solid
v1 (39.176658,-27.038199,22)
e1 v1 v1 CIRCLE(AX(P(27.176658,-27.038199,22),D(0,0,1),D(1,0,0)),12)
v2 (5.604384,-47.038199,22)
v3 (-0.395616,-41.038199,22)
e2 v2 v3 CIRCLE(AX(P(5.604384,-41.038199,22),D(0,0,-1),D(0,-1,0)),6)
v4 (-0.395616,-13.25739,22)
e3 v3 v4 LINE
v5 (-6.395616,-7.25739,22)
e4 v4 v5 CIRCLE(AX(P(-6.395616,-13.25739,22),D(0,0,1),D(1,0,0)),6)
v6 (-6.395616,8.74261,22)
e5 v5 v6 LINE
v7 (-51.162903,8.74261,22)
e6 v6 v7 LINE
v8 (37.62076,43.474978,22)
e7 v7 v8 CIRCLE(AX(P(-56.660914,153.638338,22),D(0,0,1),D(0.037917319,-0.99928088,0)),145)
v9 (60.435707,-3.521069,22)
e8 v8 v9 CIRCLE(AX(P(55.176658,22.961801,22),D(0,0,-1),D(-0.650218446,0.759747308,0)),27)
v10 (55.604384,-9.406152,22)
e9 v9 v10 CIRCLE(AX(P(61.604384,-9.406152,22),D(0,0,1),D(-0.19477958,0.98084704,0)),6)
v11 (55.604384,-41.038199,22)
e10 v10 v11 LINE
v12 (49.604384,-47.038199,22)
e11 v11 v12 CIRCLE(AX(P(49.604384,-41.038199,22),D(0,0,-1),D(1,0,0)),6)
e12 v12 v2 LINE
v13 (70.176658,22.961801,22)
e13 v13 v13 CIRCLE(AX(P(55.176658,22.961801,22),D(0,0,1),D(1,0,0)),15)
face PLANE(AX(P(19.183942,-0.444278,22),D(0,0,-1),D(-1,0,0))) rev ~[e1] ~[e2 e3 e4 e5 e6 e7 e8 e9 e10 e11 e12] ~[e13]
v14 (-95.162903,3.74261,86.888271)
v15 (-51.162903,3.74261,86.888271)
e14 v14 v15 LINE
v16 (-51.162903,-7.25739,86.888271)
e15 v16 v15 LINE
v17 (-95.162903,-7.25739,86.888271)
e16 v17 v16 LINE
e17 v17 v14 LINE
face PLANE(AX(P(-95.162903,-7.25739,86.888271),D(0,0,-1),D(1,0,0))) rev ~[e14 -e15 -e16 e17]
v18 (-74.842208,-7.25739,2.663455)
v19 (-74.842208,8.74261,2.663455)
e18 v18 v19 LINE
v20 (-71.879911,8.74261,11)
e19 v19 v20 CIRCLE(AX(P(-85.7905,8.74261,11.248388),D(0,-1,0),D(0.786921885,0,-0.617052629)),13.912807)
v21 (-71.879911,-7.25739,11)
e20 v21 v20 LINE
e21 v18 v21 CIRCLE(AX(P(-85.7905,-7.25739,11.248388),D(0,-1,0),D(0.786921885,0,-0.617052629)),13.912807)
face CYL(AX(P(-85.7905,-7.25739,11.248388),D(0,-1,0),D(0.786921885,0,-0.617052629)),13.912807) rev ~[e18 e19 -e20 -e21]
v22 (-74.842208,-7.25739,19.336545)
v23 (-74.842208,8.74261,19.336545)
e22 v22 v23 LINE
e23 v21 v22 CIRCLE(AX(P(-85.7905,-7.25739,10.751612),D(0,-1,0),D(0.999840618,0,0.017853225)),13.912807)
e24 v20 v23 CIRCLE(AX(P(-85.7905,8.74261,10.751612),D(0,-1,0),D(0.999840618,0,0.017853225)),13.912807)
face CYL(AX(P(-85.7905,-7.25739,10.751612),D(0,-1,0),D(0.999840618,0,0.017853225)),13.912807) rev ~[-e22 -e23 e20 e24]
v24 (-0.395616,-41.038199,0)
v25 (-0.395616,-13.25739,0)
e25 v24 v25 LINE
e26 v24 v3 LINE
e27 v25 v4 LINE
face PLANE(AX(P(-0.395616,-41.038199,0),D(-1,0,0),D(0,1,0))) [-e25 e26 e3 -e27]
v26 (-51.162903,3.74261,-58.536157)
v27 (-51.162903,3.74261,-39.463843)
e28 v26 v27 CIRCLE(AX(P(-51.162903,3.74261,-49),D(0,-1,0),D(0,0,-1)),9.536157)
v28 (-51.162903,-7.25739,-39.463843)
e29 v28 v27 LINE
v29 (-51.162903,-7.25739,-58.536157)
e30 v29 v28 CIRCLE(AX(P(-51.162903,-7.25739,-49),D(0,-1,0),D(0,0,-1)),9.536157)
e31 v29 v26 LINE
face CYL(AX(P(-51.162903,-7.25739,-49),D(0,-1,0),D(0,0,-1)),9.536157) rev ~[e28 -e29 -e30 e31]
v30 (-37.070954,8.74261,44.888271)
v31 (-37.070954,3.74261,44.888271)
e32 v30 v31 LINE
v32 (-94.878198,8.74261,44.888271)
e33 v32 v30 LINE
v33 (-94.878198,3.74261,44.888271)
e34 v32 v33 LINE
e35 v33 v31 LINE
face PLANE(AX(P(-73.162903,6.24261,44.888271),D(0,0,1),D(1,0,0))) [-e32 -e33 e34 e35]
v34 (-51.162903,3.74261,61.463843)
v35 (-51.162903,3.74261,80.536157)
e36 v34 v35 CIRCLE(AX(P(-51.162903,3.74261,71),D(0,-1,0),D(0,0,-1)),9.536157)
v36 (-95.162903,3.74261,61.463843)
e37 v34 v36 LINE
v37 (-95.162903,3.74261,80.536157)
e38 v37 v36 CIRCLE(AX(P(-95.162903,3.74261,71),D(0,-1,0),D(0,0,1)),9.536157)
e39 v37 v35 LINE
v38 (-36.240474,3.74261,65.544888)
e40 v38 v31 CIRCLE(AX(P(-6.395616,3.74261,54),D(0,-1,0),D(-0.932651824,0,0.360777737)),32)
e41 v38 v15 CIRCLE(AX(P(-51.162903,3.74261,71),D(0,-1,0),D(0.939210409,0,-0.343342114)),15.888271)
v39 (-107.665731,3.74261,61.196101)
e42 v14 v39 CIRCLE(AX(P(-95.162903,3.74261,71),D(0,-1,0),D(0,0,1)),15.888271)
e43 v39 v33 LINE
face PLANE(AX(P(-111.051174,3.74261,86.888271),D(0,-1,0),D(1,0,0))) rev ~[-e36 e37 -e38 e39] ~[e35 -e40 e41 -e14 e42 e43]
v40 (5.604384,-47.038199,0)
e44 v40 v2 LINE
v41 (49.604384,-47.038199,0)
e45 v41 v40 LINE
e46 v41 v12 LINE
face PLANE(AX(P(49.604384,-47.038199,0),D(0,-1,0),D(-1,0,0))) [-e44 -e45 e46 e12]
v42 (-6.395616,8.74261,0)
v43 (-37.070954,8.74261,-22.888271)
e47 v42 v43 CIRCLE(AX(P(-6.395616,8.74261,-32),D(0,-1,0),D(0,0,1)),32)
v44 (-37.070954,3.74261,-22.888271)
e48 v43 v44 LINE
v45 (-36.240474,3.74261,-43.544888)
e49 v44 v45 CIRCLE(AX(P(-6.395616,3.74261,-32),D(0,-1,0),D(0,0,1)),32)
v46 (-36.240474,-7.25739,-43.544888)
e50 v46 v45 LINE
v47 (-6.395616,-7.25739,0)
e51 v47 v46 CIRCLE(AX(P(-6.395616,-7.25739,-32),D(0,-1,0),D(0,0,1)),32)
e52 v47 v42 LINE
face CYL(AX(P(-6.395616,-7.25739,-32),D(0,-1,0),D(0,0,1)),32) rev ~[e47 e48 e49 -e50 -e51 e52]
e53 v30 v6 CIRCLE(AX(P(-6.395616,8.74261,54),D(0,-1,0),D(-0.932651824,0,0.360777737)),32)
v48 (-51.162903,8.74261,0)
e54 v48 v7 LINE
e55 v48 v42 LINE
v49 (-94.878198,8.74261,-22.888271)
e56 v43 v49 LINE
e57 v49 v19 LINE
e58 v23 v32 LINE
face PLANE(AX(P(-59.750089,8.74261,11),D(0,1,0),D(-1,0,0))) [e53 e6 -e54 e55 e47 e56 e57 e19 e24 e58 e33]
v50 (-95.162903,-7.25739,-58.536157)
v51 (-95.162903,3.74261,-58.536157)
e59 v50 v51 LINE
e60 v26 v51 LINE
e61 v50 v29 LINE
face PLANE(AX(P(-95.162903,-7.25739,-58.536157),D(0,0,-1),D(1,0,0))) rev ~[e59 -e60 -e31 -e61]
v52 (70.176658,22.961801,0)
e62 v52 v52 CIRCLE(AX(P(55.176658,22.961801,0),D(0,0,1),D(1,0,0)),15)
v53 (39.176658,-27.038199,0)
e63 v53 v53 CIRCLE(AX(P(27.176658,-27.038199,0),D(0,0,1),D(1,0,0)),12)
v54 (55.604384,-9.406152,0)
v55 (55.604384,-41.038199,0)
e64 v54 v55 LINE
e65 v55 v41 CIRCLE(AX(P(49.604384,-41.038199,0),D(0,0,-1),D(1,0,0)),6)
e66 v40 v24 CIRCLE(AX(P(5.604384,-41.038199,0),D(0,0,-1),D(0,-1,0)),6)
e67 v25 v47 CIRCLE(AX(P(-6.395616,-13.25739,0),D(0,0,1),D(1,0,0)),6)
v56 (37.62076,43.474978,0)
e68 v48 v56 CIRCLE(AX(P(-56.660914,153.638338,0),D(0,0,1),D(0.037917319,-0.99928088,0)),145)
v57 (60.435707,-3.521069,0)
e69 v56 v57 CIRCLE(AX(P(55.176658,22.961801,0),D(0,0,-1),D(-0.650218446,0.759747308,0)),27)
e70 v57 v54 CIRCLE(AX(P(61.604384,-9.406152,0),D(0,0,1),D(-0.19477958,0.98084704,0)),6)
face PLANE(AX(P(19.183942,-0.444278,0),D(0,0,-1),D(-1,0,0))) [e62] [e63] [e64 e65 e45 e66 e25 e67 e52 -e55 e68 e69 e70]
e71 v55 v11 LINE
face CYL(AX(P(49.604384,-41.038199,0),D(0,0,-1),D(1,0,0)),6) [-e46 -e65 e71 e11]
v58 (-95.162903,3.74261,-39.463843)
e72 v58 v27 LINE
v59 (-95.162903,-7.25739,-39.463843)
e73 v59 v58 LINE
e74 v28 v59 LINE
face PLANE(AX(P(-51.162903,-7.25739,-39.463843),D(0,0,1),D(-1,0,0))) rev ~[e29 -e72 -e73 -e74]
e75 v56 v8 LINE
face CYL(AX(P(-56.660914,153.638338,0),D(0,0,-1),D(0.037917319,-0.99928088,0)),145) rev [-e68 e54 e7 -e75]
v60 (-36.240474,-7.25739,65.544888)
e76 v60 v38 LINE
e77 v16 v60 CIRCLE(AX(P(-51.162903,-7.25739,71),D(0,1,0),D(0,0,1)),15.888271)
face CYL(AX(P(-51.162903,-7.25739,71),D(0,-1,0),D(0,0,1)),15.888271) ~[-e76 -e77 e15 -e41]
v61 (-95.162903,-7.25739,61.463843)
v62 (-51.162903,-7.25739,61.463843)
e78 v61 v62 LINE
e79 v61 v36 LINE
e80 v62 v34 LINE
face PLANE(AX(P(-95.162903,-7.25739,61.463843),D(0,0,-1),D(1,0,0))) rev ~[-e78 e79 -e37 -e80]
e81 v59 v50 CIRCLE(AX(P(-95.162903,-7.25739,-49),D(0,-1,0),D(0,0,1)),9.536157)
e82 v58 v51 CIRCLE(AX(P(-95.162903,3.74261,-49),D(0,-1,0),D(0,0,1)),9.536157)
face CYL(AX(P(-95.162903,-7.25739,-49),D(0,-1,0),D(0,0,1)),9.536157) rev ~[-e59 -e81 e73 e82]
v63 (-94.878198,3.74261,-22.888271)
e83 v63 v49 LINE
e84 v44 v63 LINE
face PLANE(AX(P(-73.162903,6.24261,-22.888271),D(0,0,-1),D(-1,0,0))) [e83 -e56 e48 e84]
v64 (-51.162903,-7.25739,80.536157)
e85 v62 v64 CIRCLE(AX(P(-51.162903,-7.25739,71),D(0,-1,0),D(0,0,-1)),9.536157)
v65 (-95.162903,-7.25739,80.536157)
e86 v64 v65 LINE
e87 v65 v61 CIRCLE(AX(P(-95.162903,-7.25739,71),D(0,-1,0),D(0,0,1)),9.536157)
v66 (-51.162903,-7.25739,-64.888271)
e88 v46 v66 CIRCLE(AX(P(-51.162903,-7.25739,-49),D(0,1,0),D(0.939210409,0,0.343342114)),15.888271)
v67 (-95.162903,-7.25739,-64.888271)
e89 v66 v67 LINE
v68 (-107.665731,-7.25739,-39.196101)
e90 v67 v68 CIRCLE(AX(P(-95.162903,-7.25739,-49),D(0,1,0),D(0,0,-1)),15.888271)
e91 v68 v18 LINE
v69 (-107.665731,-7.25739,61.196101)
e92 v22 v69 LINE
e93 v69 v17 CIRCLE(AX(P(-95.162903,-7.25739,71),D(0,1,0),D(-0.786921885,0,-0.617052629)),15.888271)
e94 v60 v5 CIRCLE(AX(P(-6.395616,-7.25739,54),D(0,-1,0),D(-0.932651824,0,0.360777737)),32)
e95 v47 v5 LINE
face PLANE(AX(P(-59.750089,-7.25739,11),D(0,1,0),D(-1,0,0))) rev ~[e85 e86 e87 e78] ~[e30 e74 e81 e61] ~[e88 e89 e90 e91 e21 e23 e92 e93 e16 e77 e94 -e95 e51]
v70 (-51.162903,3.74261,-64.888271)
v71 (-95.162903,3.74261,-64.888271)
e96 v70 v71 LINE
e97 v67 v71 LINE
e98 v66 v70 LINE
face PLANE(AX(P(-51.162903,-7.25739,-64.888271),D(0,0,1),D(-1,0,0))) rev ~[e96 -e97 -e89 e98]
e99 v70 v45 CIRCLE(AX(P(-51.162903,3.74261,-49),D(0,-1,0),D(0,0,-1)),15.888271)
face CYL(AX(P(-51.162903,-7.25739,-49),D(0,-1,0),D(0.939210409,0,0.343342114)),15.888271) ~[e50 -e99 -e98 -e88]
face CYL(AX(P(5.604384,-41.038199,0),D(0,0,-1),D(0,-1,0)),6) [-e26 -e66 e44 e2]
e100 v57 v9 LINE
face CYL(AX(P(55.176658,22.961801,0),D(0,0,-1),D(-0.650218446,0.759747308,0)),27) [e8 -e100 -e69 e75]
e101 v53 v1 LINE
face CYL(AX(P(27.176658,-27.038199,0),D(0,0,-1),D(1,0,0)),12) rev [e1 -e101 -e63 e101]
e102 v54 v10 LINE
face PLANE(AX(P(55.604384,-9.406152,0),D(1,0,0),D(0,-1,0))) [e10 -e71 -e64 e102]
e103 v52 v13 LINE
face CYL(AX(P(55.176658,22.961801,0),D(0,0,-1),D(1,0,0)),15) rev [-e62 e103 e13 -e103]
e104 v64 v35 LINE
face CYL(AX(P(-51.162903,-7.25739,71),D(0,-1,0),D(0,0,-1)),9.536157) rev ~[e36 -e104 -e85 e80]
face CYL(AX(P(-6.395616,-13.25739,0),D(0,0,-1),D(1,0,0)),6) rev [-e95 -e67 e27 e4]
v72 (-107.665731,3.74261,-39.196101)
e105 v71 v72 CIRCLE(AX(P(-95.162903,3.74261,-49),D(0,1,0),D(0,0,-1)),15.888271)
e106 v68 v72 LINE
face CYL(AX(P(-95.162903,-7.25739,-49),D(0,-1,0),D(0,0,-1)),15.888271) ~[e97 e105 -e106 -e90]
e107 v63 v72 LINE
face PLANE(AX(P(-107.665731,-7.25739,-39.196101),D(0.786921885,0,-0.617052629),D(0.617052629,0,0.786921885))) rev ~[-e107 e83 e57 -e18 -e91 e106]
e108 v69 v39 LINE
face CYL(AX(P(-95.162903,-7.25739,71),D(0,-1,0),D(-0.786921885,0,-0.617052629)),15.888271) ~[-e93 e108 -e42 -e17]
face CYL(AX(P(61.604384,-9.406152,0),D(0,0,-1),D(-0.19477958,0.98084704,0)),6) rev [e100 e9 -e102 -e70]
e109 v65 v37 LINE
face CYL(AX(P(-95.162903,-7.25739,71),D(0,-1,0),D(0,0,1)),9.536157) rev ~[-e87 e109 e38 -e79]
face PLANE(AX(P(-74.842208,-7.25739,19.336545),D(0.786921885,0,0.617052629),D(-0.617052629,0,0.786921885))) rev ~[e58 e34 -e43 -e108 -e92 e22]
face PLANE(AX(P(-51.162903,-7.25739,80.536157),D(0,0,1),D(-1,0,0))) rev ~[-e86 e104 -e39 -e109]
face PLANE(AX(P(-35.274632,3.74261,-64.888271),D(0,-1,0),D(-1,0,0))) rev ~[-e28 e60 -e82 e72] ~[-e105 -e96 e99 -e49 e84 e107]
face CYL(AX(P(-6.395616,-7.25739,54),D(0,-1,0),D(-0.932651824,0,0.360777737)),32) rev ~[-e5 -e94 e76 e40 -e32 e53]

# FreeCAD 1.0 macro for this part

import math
import FreeCAD as App
import Part
import Sketcher
from FreeCAD import Vector


def add_polygon(sketch, points):
    """Adds a closed chain of lines whose ends are joined by coincident constraints."""
    first, n = sketch.GeometryCount, len(points)
    for a, b in zip(points, points[1:] + points[:1]):
        sketch.addGeometry(Part.LineSegment(App.Vector(*a, 0), App.Vector(*b, 0)), False)
    for i in range(n):
        sketch.addConstraint(Sketcher.Constraint("Coincident", first + i, 2, first + (i + 1) % n, 1))

doc = App.newDocument("Part")
body = doc.addObject("PartDesign::Body", "Body")

# Sketch on XY plane
sketch1 = body.newObject("Sketcher::SketchObject", "Sketch")
sketch1.AttachmentSupport = (doc.getObject("XY_Plane"), [""])
sketch1.MapMode = "FlatFace"
sketch1.addGeometry([
    Part.LineSegment(Vector(56, -41, 0), Vector(56, -9, 0)),  # 0
    Part.ArcOfCircle(Part.Circle(Vector(62, -9, 0), Vector(0, 0, 1), 6), math.radians(101), math.radians(180)),  # 1
    Part.ArcOfCircle(Part.Circle(Vector(55, 23, 0), Vector(0, 0, 1), 27), math.radians(-79), math.radians(131)),  # 2
    Part.ArcOfCircle(Part.Circle(Vector(-57, 154, 0), Vector(0, 0, 1), 145), math.radians(-88), math.radians(-49)),  # 3
    Part.LineSegment(Vector(-51, 9, 0), Vector(-51, -7, 0)),  # 4
    Part.LineSegment(Vector(-51, -7, 0), Vector(-6, -7, 0)),  # 5
    Part.ArcOfCircle(Part.Circle(Vector(-6, -13, 0), Vector(0, 0, 1), 6), math.radians(0), math.radians(90)),  # 6
    Part.LineSegment(Vector(0, -13, 0), Vector(0, -41, 0)),  # 7
    Part.ArcOfCircle(Part.Circle(Vector(6, -41, 0), Vector(0, 0, 1), 6), math.radians(180), math.radians(270)),  # 8
    Part.LineSegment(Vector(6, -47, 0), Vector(50, -47, 0)),  # 9
    Part.ArcOfCircle(Part.Circle(Vector(50, -41, 0), Vector(0, 0, 1), 6), math.radians(-90), math.radians(0)),  # 10
    Part.Circle(Vector(27, -27, 0), Vector(0, 0, 1), 12),  # 11
    Part.Circle(Vector(55, 23, 0), Vector(0, 0, 1), 15),  # 12
], False)
sketch1.addConstraint([
    Sketcher.Constraint("Tangent", 0, 2, 1, 2),
    Sketcher.Constraint("Tangent", 1, 1, 2, 1),
    Sketcher.Constraint("Tangent", 2, 2, 3, 2),
    Sketcher.Constraint("Coincident", 3, 1, 4, 1),
    Sketcher.Constraint("Coincident", 4, 2, 5, 1),
    Sketcher.Constraint("Tangent", 5, 2, 6, 2),
    Sketcher.Constraint("Tangent", 6, 1, 7, 1),
    Sketcher.Constraint("Tangent", 7, 2, 8, 1),
    Sketcher.Constraint("Tangent", 8, 2, 9, 1),
    Sketcher.Constraint("Tangent", 9, 2, 10, 1),
    Sketcher.Constraint("Tangent", 10, 2, 0, 1),
    Sketcher.Constraint("Vertical", 0),
    Sketcher.Constraint("Vertical", 4),
    Sketcher.Constraint("Horizontal", 5),
    Sketcher.Constraint("Vertical", 7),
    Sketcher.Constraint("Horizontal", 9),
    Sketcher.Constraint("Coincident", 12, 3, 2, 3),
    Sketcher.Constraint("Equal", 1, 6),
    Sketcher.Constraint("Equal", 6, 8),
    Sketcher.Constraint("Equal", 8, 10),
    Sketcher.Constraint("Diameter", 11, 24.0),
    Sketcher.Constraint("Diameter", 12, 30.0),
    Sketcher.Constraint("Radius", 1, 6.0),
    Sketcher.Constraint("Radius", 2, 27.0),
    Sketcher.Constraint("Radius", 3, 145.0),
    Sketcher.Constraint("DistanceX", 9, 1, 9, 2, 44.0),
    Sketcher.Constraint("DistanceY", 4, 2, 4, 1, 16.0),
    Sketcher.Constraint("DistanceY", 8, 3, 2, 3, 64.0),
    Sketcher.Constraint("DistanceY", 8, 3, 11, 3, 14.0),
    Sketcher.Constraint("DistanceX", 11, 3, 2, 3, 28.0),
    Sketcher.Constraint("DistanceY", 7, 2, 7, 1, 27.780809),
    Sketcher.Constraint("DistanceY", -1, 1, 2, 3, 22.961801),
    Sketcher.Constraint("DistanceX", 3, 3, 1, 3, 118.265299),
    Sketcher.Constraint("DistanceX", 5, 1, 5, 2, 44.767288),
    Sketcher.Constraint("DistanceX", -1, 1, 2, 3, 55.176658),
])
pad1 = body.newObject("PartDesign::Pad", "Pad")
pad1.Profile = sketch1
pad1.Length = 22

# Sketch on XZ plane
sketch2 = body.newObject("Sketcher::SketchObject", "Sketch001")
sketch2.AttachmentSupport = (doc.getObject("XZ_Plane"), [""])
sketch2.MapMode = "FlatFace"
sketch2.AttachmentOffset = App.Placement(Vector(0, 0, 7.25739), App.Rotation())
sketch2.addGeometry([
    Part.ArcOfCircle(Part.Circle(Vector(-51, -49, 0), Vector(0, 0, 1), 16), math.radians(-90), math.radians(20)),  # 0
    Part.ArcOfCircle(Part.Circle(Vector(-6, -32, 0), Vector(0, 0, 1), 32), math.radians(90), math.radians(201)),  # 1
    Part.LineSegment(Vector(-6, 0, 0), Vector(-51, 0, 0)),  # 2
    Part.LineSegment(Vector(-51, 0, 0), Vector(-51, 22, 0)),  # 3
    Part.LineSegment(Vector(-51, 22, 0), Vector(-6, 22, 0)),  # 4
    Part.ArcOfCircle(Part.Circle(Vector(-6, 54, 0), Vector(0, 0, 1), 32), math.radians(159), math.radians(270)),  # 5
    Part.ArcOfCircle(Part.Circle(Vector(-51, 71, 0), Vector(0, 0, 1), 16), math.radians(-20), math.radians(90)),  # 6
    Part.LineSegment(Vector(-51, 87, 0), Vector(-95, 87, 0)),  # 7
    Part.ArcOfCircle(Part.Circle(Vector(-95, 71, 0), Vector(0, 0, 1), 16), math.radians(90), math.radians(218)),  # 8
    Part.LineSegment(Vector(-108, 61, 0), Vector(-75, 19, 0)),  # 9
    Part.ArcOfCircle(Part.Circle(Vector(-86, 11, 0), Vector(0, 0, 1), 14), math.radians(1), math.radians(38)),  # 10
    Part.ArcOfCircle(Part.Circle(Vector(-86, 11, 0), Vector(0, 0, 1), 14), math.radians(-38), math.radians(-1)),  # 11
    Part.LineSegment(Vector(-75, 3, 0), Vector(-108, -39, 0)),  # 12
    Part.ArcOfCircle(Part.Circle(Vector(-95, -49, 0), Vector(0, 0, 1), 16), math.radians(142), math.radians(270)),  # 13
    Part.LineSegment(Vector(-95, -65, 0), Vector(-51, -65, 0)),  # 14
    Part.LineSegment(Vector(-51, -59, 0), Vector(-95, -59, 0)),  # 15
    Part.ArcOfCircle(Part.Circle(Vector(-95, -49, 0), Vector(0, 0, 1), 10), math.radians(90), math.radians(270)),  # 16
    Part.LineSegment(Vector(-95, -39, 0), Vector(-51, -39, 0)),  # 17
    Part.ArcOfCircle(Part.Circle(Vector(-51, -49, 0), Vector(0, 0, 1), 10), math.radians(-90), math.radians(90)),  # 18
    Part.LineSegment(Vector(-95, 81, 0), Vector(-51, 81, 0)),  # 19
    Part.ArcOfCircle(Part.Circle(Vector(-51, 71, 0), Vector(0, 0, 1), 10), math.radians(-90), math.radians(90)),  # 20
    Part.LineSegment(Vector(-51, 61, 0), Vector(-95, 61, 0)),  # 21
    Part.ArcOfCircle(Part.Circle(Vector(-95, 71, 0), Vector(0, 0, 1), 10), math.radians(90), math.radians(270)),  # 22
], False)
sketch2.addConstraint([
    Sketcher.Constraint("Coincident", 0, 2, 1, 2),
    Sketcher.Constraint("Tangent", 1, 1, 2, 1),
    Sketcher.Constraint("Coincident", 2, 2, 3, 1),
    Sketcher.Constraint("Coincident", 3, 2, 4, 1),
    Sketcher.Constraint("Tangent", 4, 2, 5, 2),
    Sketcher.Constraint("Coincident", 5, 1, 6, 1),
    Sketcher.Constraint("Tangent", 6, 2, 7, 1),
    Sketcher.Constraint("Tangent", 7, 2, 8, 1),
    Sketcher.Constraint("Tangent", 8, 2, 9, 1),
    Sketcher.Constraint("Tangent", 9, 2, 10, 2),
    Sketcher.Constraint("Coincident", 10, 1, 11, 2),
    Sketcher.Constraint("Tangent", 11, 1, 12, 1),
    Sketcher.Constraint("Tangent", 12, 2, 13, 1),
    Sketcher.Constraint("Tangent", 13, 2, 14, 1),
    Sketcher.Constraint("Tangent", 14, 2, 0, 1),
    Sketcher.Constraint("Tangent", 15, 2, 16, 2),
    Sketcher.Constraint("Tangent", 16, 1, 17, 1),
    Sketcher.Constraint("Tangent", 17, 2, 18, 2),
    Sketcher.Constraint("Tangent", 18, 1, 15, 1),
    Sketcher.Constraint("Tangent", 19, 2, 20, 2),
    Sketcher.Constraint("Tangent", 20, 1, 21, 1),
    Sketcher.Constraint("Tangent", 21, 2, 22, 2),
    Sketcher.Constraint("Tangent", 22, 1, 19, 1),
    Sketcher.Constraint("Horizontal", 2),
    Sketcher.Constraint("Vertical", 3),
    Sketcher.Constraint("Horizontal", 4),
    Sketcher.Constraint("Horizontal", 7),
    Sketcher.Constraint("Horizontal", 14),
    Sketcher.Constraint("Horizontal", 15),
    Sketcher.Constraint("Horizontal", 17),
    Sketcher.Constraint("Horizontal", 19),
    Sketcher.Constraint("Horizontal", 21),
    Sketcher.Constraint("Coincident", 16, 3, 13, 3),
    Sketcher.Constraint("Coincident", 18, 3, 0, 3),
    Sketcher.Constraint("Coincident", 20, 3, 6, 3),
    Sketcher.Constraint("Coincident", 22, 3, 8, 3),
    Sketcher.Constraint("Equal", 1, 5),
    Sketcher.Constraint("Equal", 0, 6),
    Sketcher.Constraint("Equal", 10, 11),
    Sketcher.Constraint("Equal", 18, 20),
    Sketcher.Constraint("PointOnObject", 1, 1, -1),
    Sketcher.Constraint("Vertical", 1, 3, 5, 3),
    Sketcher.Constraint("Vertical", 0, 3, 6, 3),
    Sketcher.Constraint("Vertical", 10, 3, 11, 3),
    Sketcher.Constraint("Vertical", 8, 3, 13, 3),
    Sketcher.Constraint("Vertical", 20, 3, 2, 2),
    Sketcher.Constraint("Vertical", 0, 2, 5, 1),
    Sketcher.Constraint("Vertical", 9, 2, 11, 1),
    Sketcher.Constraint("Radius", 1, 32.0),
    Sketcher.Constraint("DistanceX", 7, 2, 7, 1, 44.0),
    Sketcher.Constraint("DistanceY", 3, 1, 3, 2, 22.0),
    Sketcher.Constraint("DistanceY", 0, 3, -1, 1, 49.0),
    Sketcher.Constraint("Radius", 0, 15.888271),
    Sketcher.Constraint("Radius", 10, 13.912807),
    Sketcher.Constraint("Radius", 16, 9.536157),
    Sketcher.Constraint("DistanceX", 10, 3, -1, 1, 85.7905),
    Sketcher.Constraint("DistanceY", -1, 1, 8, 2, 61.196101),
    Sketcher.Constraint("Distance", 9, 53.194041),
    Sketcher.Constraint("DistanceX", 2, 2, 2, 1, 44.767288),
])
pad2 = body.newObject("PartDesign::Pad", "Pad001")
pad2.Profile = sketch2
pad2.Length = 16
pad2.Reversed = True

# Sketch on XY plane
sketch3 = body.newObject("Sketcher::SketchObject", "Sketch002")
sketch3.AttachmentSupport = (doc.getObject("XY_Plane"), [""])
sketch3.MapMode = "FlatFace"
sketch3.AttachmentOffset = App.Placement(Vector(0, 0, 86.888271), App.Rotation())
add_polygon(sketch3, [(-111, 9), (-111, 4), (-35, 4), (-35, 9)])  # lines 0-3
sketch3.addConstraint([
    Sketcher.Constraint("Vertical", 0),
    Sketcher.Constraint("Horizontal", 1),
    Sketcher.Constraint("Vertical", 2),
    Sketcher.Constraint("Horizontal", 3),
    Sketcher.Constraint("DistanceY", 0, 2, 0, 1, 5.0),
    Sketcher.Constraint("DistanceX", 1, 1, 1, 2, 75.776541),
    Sketcher.Constraint("DistanceY", -1, 1, 0, 2, 3.74261),
    Sketcher.Constraint("DistanceX", 0, 2, -1, 1, 111.051174),
])
pocket1 = body.newObject("PartDesign::Pocket", "Pocket")
pocket1.Profile = sketch3
pocket1.Length = 42

# Sketch on XY plane
sketch4 = body.newObject("Sketcher::SketchObject", "Sketch003")
sketch4.AttachmentSupport = (doc.getObject("XY_Plane"), [""])
sketch4.MapMode = "FlatFace"
sketch4.AttachmentOffset = App.Placement(Vector(0, 0, -64.888271), App.Rotation())
add_polygon(sketch4, [(-35, 9), (-35, 4), (-111, 4), (-111, 9)])  # lines 0-3
sketch4.addConstraint([
    Sketcher.Constraint("Vertical", 0),
    Sketcher.Constraint("Horizontal", 1),
    Sketcher.Constraint("Vertical", 2),
    Sketcher.Constraint("Horizontal", 3),
    Sketcher.Constraint("DistanceY", 0, 2, 0, 1, 5.0),
    Sketcher.Constraint("DistanceX", 1, 2, 1, 1, 75.776541),
    Sketcher.Constraint("DistanceY", -1, 1, 0, 2, 3.74261),
    Sketcher.Constraint("DistanceX", 0, 2, -1, 1, 35.274632),
])
pocket2 = body.newObject("PartDesign::Pocket", "Pocket001")
pocket2.Profile = sketch4
pocket2.Length = 42
pocket2.Reversed = True

doc.recompute()
